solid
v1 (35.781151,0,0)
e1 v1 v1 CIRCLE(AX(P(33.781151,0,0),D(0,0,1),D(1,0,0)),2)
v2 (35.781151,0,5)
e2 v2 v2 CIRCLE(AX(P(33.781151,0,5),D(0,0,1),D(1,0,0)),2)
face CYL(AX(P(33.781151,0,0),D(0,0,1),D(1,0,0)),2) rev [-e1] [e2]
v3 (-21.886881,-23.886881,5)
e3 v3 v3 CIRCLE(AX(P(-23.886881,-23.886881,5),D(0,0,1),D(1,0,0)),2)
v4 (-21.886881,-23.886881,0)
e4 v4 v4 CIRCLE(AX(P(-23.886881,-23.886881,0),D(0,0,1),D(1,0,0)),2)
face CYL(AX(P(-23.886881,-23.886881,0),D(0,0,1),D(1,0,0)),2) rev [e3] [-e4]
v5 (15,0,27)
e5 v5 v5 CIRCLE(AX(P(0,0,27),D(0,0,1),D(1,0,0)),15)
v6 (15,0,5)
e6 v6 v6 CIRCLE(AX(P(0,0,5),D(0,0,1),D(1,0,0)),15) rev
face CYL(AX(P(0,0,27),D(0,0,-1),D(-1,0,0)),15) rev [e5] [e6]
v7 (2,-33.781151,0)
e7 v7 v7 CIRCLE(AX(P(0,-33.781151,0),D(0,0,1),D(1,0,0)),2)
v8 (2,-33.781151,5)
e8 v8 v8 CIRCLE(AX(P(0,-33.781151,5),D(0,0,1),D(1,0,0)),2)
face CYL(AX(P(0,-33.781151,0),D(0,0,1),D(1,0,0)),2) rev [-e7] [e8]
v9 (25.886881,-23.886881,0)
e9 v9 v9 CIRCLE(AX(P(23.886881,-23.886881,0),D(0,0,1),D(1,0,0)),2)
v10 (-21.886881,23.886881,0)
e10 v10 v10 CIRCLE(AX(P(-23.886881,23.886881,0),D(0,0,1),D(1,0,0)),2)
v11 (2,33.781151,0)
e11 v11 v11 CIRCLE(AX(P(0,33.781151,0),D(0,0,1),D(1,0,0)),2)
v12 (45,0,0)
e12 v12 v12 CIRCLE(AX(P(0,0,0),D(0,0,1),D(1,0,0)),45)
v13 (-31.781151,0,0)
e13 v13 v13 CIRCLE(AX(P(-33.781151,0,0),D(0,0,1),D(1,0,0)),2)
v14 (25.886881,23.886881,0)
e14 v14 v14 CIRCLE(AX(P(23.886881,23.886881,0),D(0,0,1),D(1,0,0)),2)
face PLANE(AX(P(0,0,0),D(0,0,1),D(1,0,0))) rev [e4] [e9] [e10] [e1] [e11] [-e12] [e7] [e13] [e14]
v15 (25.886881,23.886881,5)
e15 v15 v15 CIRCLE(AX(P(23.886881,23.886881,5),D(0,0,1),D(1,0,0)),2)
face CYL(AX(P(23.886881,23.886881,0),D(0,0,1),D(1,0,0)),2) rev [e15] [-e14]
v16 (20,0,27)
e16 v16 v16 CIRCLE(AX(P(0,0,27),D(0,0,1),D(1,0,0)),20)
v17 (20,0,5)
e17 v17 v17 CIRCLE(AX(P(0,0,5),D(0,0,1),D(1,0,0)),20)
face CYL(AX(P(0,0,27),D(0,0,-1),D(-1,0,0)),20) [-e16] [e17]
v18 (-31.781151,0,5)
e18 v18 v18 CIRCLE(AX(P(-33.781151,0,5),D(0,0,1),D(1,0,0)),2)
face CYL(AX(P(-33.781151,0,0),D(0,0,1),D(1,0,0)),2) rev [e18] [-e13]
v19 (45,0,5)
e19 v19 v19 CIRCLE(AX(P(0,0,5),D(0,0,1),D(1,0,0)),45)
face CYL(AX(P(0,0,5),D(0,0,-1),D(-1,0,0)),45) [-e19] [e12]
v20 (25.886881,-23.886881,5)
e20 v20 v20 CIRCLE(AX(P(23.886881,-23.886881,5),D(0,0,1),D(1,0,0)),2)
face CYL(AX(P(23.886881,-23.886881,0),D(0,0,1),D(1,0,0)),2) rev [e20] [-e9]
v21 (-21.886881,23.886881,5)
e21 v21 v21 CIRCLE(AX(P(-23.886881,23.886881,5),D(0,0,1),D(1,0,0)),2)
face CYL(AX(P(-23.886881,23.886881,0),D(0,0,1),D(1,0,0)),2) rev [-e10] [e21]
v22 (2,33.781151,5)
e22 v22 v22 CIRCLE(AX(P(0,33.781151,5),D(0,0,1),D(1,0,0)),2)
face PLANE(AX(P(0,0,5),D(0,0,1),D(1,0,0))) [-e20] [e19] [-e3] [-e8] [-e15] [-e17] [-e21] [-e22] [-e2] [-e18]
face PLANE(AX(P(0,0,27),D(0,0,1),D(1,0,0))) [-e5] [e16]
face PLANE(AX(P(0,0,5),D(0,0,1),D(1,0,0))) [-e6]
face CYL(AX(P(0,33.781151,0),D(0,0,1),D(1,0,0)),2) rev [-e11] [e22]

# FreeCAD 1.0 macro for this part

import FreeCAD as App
import Part
import Sketcher
from FreeCAD import Vector
Q = App.Units.Quantity

doc = App.newDocument("Part")
params = doc.addObject("Spreadsheet::Sheet", "Params")
for row, (alias, value) in enumerate([
    ("sketch1_diameter", "90 mm"),
    ("pad1_length", "5 mm"),
    ("sketch2_diameter", "40 mm"),
    ("sketch2_diameter2", "30 mm"),
    ("pad2_length", "22 mm"),
    ("sketch3_diameter", "4 mm"),
], start=1):
    params.set(f"A{row}", alias)
    params.set(f"B{row}", "=" + value)
    params.setAlias(f"B{row}", alias)

body = doc.addObject("PartDesign::Body", "Body")

sketch1 = doc.addObject("Sketcher::SketchObject", "Sketch")
body.addObject(sketch1)
sketch1.AttachmentSupport = (doc.XY_Plane, [""])
sketch1.MapMode = "FlatFace"
sketch1.addGeometry(Part.Circle(Vector(0, 0, 0), Vector(0, 0, 1), 45), False)
sketch1.addConstraint([
    Sketcher.Constraint("Coincident", 0, 3, -1, 1),
    Sketcher.Constraint("Diameter", 0, Q("90 mm")),
])
sketch1.setExpression("Constraints[1]", "Params.sketch1_diameter")
pad1 = doc.addObject("PartDesign::Pad", "Pad")
body.addObject(pad1)
pad1.Profile = sketch1
pad1.setExpression("Length", "Params.pad1_length")

sketch2 = doc.addObject("Sketcher::SketchObject", "Sketch001")
body.addObject(sketch2)
sketch2.AttachmentSupport = (doc.XY_Plane, [""])
sketch2.MapMode = "FlatFace"
sketch2.AttachmentOffset = App.Placement(Vector(0, 0, 5), App.Rotation())
sketch2.addGeometry([
    Part.Circle(Vector(0, 0, 0), Vector(0, 0, 1), 20),
    Part.Circle(Vector(0, 0, 0), Vector(0, 0, 1), 15),
], False)
sketch2.addConstraint([
    Sketcher.Constraint("Coincident", 0, 3, -1, 1),
    Sketcher.Constraint("Coincident", 1, 3, -1, 1),
    Sketcher.Constraint("Diameter", 0, Q("40 mm")),
    Sketcher.Constraint("Diameter", 1, Q("30 mm")),
])
sketch2.setExpression("Constraints[2]", "Params.sketch2_diameter")
sketch2.setExpression("Constraints[3]", "Params.sketch2_diameter2")
pad2 = doc.addObject("PartDesign::Pad", "Pad001")
body.addObject(pad2)
pad2.Profile = sketch2
pad2.setExpression("Length", "Params.pad2_length")

sketch3 = doc.addObject("Sketcher::SketchObject", "Sketch002")
body.addObject(sketch3)
sketch3.AttachmentSupport = (doc.XY_Plane, [""])
sketch3.MapMode = "FlatFace"
sketch3.AttachmentOffset = App.Placement(Vector(0, 0, 5), App.Rotation())
sketch3.addGeometry([
    Part.Circle(Vector(0, 33.8, 0), Vector(0, 0, 1), 2),
    Part.Circle(Vector(23.9, 23.9, 0), Vector(0, 0, 1), 2),
    Part.Circle(Vector(33.8, 0, 0), Vector(0, 0, 1), 2),
    Part.Circle(Vector(23.9, -23.9, 0), Vector(0, 0, 1), 2),
    Part.Circle(Vector(0, -33.8, 0), Vector(0, 0, 1), 2),
    Part.Circle(Vector(-23.9, -23.9, 0), Vector(0, 0, 1), 2),
    Part.Circle(Vector(-33.8, 0, 0), Vector(0, 0, 1), 2),
    Part.Circle(Vector(-23.9, 23.9, 0), Vector(0, 0, 1), 2),
], False)
sketch3.addConstraint([
    Sketcher.Constraint("Equal", 0, 1),
    Sketcher.Constraint("Equal", 1, 2),
    Sketcher.Constraint("Equal", 2, 3),
    Sketcher.Constraint("Equal", 3, 4),
    Sketcher.Constraint("Equal", 4, 5),
    Sketcher.Constraint("Equal", 5, 6),
    Sketcher.Constraint("Equal", 6, 7),
    Sketcher.Constraint("Symmetric", 0, 3, 4, 3, -1, 1),
    Sketcher.Constraint("Symmetric", 1, 3, 5, 3, -1, 1),
    Sketcher.Constraint("Symmetric", 2, 3, 6, 3, -1, 1),
    Sketcher.Constraint("Symmetric", 3, 3, 7, 3, -1, 1),
    Sketcher.Constraint("Symmetric", 3, 3, 5, 3, -2),
    Sketcher.Constraint("PointOnObject", 0, 3, -2),
    Sketcher.Constraint("PointOnObject", 2, 3, -1),
    Sketcher.Constraint("Diameter", 0, Q("4 mm")),
    Sketcher.Constraint("DistanceY", 4, 3, 0, 3, Q("67.562302 mm")),
    Sketcher.Constraint("DistanceX", -1, 1, 1, 3, Q("23.886881 mm")),
    Sketcher.Constraint("DistanceY", -1, 1, 1, 3, Q("23.886881 mm")),
    Sketcher.Constraint("DistanceX", -1, 1, 2, 3, Q("33.781151 mm")),
])
sketch3.setExpression("Constraints[14]", "Params.sketch3_diameter")
pocket1 = doc.addObject("PartDesign::Pocket", "Pocket")
body.addObject(pocket1)
pocket1.Profile = sketch3
pocket1.Type = "ThroughAll"

doc.recompute()
